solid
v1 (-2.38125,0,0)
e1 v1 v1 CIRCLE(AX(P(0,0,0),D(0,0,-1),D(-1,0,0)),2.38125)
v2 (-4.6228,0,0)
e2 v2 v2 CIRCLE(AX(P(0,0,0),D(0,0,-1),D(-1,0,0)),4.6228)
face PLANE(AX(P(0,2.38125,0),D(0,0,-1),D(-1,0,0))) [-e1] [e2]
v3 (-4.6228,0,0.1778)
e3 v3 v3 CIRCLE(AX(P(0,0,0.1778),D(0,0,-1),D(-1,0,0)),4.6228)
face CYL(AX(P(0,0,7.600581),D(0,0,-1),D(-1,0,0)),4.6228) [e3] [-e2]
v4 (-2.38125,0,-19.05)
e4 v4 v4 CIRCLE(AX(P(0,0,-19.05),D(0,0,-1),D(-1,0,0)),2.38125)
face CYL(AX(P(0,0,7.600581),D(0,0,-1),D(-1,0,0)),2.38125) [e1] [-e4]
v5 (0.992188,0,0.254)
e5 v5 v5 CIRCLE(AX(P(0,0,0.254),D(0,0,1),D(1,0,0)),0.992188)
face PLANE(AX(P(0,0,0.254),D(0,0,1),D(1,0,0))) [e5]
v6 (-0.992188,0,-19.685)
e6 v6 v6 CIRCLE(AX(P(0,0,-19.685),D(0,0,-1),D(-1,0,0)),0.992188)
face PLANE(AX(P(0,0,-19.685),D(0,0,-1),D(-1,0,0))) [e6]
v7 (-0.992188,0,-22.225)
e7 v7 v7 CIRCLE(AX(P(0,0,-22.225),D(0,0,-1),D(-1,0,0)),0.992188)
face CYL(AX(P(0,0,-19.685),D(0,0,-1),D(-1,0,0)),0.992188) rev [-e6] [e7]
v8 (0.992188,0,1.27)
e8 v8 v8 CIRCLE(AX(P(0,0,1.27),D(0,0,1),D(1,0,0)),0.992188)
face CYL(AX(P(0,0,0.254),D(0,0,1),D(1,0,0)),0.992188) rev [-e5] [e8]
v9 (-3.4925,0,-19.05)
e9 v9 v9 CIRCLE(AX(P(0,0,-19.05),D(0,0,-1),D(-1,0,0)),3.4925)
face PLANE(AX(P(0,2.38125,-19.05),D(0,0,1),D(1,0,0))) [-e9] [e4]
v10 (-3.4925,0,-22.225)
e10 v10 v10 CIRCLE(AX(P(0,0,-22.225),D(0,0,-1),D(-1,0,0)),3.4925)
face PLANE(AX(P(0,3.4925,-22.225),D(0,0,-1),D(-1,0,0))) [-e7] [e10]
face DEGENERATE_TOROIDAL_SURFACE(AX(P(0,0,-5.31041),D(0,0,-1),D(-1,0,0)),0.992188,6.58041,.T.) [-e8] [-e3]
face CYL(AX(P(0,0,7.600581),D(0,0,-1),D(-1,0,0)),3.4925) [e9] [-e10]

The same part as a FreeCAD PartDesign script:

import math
import FreeCAD as App
import Part
import Sketcher
Q = App.Units.Quantity

doc = App.newDocument("Part")
body = doc.addObject("PartDesign::Body", "Body")

# Sketch on YZ plane
sketch1 = doc.addObject("Sketcher::SketchObject", "Sketch")
body.addObject(sketch1)
sketch1.AttachmentSupport = (doc.YZ_Plane, [""])
sketch1.MapMode = "FlatFace"
sketch1.addGeometry([
    Part.LineSegment(App.Vector(0.99, 1.27, 0), App.Vector(0, 1.27, 0)),  # 0
    Part.LineSegment(App.Vector(0, 1.27, 0), App.Vector(0, -22.23, 0)),  # 1
    Part.LineSegment(App.Vector(0, -22.23, 0), App.Vector(3.49, -22.23, 0)),  # 2
    Part.LineSegment(App.Vector(3.49, -22.23, 0), App.Vector(3.49, -19.05, 0)),  # 3
    Part.LineSegment(App.Vector(3.49, -19.05, 0), App.Vector(2.38, -19.05, 0)),  # 4
    Part.LineSegment(App.Vector(2.38, -19.05, 0), App.Vector(2.38, 0, 0)),  # 5
    Part.LineSegment(App.Vector(2.38, 0, 0), App.Vector(4.62, 0, 0)),  # 6
    Part.LineSegment(App.Vector(4.62, 0, 0), App.Vector(4.62, 0.18, 0)),  # 7
    Part.ArcOfCircle(Part.Circle(App.Vector(0.99, -5.31, 0), App.Vector(0, 0, 1), 6.58), math.radians(57), math.radians(90)),  # 8
], False)
sketch1.addConstraint([
    Sketcher.Constraint("Coincident", 0, 2, 1, 1),
    Sketcher.Constraint("Coincident", 1, 2, 2, 1),
    Sketcher.Constraint("Coincident", 2, 2, 3, 1),
    Sketcher.Constraint("Coincident", 3, 2, 4, 1),
    Sketcher.Constraint("Coincident", 4, 2, 5, 1),
    Sketcher.Constraint("Coincident", 5, 2, 6, 1),
    Sketcher.Constraint("Coincident", 6, 2, 7, 1),
    Sketcher.Constraint("Coincident", 7, 2, 8, 1),
    Sketcher.Constraint("Tangent", 8, 2, 0, 1),
    Sketcher.Constraint("Horizontal", 0),
    Sketcher.Constraint("Vertical", 1),
    Sketcher.Constraint("Horizontal", 2),
    Sketcher.Constraint("Vertical", 3),
    Sketcher.Constraint("Horizontal", 4),
    Sketcher.Constraint("Vertical", 5),
    Sketcher.Constraint("Horizontal", 6),
    Sketcher.Constraint("Vertical", 7),
    Sketcher.Constraint("PointOnObject", 0, 2, -2),
    Sketcher.Constraint("PointOnObject", 5, 2, -1),
    Sketcher.Constraint("DistanceY", 5, 1, 5, 2, Q("0.75 in")),
    Sketcher.Constraint("DistanceY", 3, 2, 0, 2, Q("0.8 in")),
    Sketcher.Constraint("DistanceY", 1, 2, 1, 1, Q("0.925 in")),
    Sketcher.Constraint("DistanceY", 7, 1, 7, 2, Q("0.007 in")),
    Sketcher.Constraint("DistanceX", 2, 1, 2, 2, Q("0.1375 in")),
    Sketcher.Constraint("DistanceX", -1, 1, 4, 2, Q("0.09375 in")),
    Sketcher.Constraint("DistanceX", -1, 1, 6, 2, Q("0.182 in")),
    Sketcher.Constraint("Radius", 8, 6.58041),
])
revolution = doc.addObject("PartDesign::Revolution", "Revolution")
body.addObject(revolution)
revolution.Profile = sketch1
revolution.ReferenceAxis = (sketch1, ["V_Axis"])
revolution.Angle = 360

# Sketch on XY plane
sketch2 = doc.addObject("Sketcher::SketchObject", "Sketch001")
body.addObject(sketch2)
sketch2.AttachmentSupport = (doc.XY_Plane, [""])
sketch2.MapMode = "FlatFace"
sketch2.AttachmentOffset = App.Placement(App.Vector(0, 0, 0.05 * 25.4), App.Rotation())
sketch2.addGeometry(Part.Circle(App.Vector(0, 0, 0), App.Vector(0, 0, 1), 1), False)
sketch2.addConstraint([
    Sketcher.Constraint("Coincident", 0, 3, -1, 1),
    Sketcher.Constraint("Diameter", 0, Q("0.078125 in")),
])
pocket1 = doc.addObject("PartDesign::Pocket", "Pocket")
body.addObject(pocket1)
pocket1.Profile = sketch2
pocket1.Length = Q("0.04 in")

# Sketch on XY plane
sketch3 = doc.addObject("Sketcher::SketchObject", "Sketch002")
body.addObject(sketch3)
sketch3.AttachmentSupport = (doc.XY_Plane, [""])
sketch3.MapMode = "FlatFace"
sketch3.AttachmentOffset = App.Placement(App.Vector(0, 0, -0.775 * 25.4), App.Rotation())
sketch3.addGeometry(Part.Circle(App.Vector(0, 0, 0), App.Vector(0, 0, 1), 1), False)
sketch3.addConstraint([
    Sketcher.Constraint("Coincident", 0, 3, -1, 1),
    Sketcher.Constraint("Diameter", 0, Q("0.078125 in")),
])
pocket2 = doc.addObject("PartDesign::Pocket", "Pocket001")
body.addObject(pocket2)
pocket2.Profile = sketch3
pocket2.Length = Q("0.1 in")

doc.recompute()
